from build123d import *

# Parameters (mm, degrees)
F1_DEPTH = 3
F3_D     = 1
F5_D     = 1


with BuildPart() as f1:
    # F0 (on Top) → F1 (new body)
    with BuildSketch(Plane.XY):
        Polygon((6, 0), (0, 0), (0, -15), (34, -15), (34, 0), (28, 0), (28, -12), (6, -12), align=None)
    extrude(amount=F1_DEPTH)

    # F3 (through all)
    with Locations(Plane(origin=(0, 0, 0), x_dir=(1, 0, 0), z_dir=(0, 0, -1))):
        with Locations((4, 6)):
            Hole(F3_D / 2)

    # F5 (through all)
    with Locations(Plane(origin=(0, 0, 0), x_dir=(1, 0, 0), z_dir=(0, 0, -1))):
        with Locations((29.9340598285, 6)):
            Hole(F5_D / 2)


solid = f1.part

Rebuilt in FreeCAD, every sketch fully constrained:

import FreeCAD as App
import Part
import Sketcher
from FreeCAD import Vector


def add_polygon(sketch, points):
    """Adds a closed chain of lines whose ends are joined by coincident constraints."""
    first, n = sketch.GeometryCount, len(points)
    for a, b in zip(points, points[1:] + points[:1]):
        sketch.addGeometry(Part.LineSegment(App.Vector(*a, 0), App.Vector(*b, 0)), False)
    for i in range(n):
        sketch.addConstraint(Sketcher.Constraint("Coincident", first + i, 2, first + (i + 1) % n, 1))

doc = App.newDocument("Part")
body = doc.addObject("PartDesign::Body", "Body")

# Sketch on XY plane
sketch1 = body.newObject("Sketcher::SketchObject", "Sketch")
sketch1.AttachmentSupport = (doc.getObject("XY_Plane"), [""])
sketch1.MapMode = "FlatFace"
add_polygon(sketch1, [(6, 0), (0, 0), (0, -15), (34, -15), (34, 0), (28, 0), (28, -12), (6, -12)])  # lines 0-7
sketch1.addConstraint([
    Sketcher.Constraint("Horizontal", 0),
    Sketcher.Constraint("Vertical", 1),
    Sketcher.Constraint("Horizontal", 2),
    Sketcher.Constraint("Vertical", 3),
    Sketcher.Constraint("Horizontal", 4),
    Sketcher.Constraint("Vertical", 5),
    Sketcher.Constraint("Horizontal", 6),
    Sketcher.Constraint("Vertical", 7),
    Sketcher.Constraint("Coincident", 0, 2, -1, 1),
    Sketcher.Constraint("PointOnObject", 3, 2, -1),
    Sketcher.Constraint("Equal", 0, 4),
    Sketcher.Constraint("DistanceX", 0, 2, 0, 1, 6.0),
    Sketcher.Constraint("DistanceX", 2, 1, 2, 2, 34.0),
    Sketcher.Constraint("DistanceY", 1, 2, 1, 1, 15.0),
    Sketcher.Constraint("DistanceY", 5, 2, 5, 1, 12.0),
])
pad1 = body.newObject("PartDesign::Pad", "Pad")
pad1.Profile = sketch1
pad1.Length = 3

# Sketch on XY plane
sketch2 = body.newObject("Sketcher::SketchObject", "Sketch001")
sketch2.AttachmentSupport = (doc.getObject("XY_Plane"), [""])
sketch2.MapMode = "FlatFace"
sketch2.addGeometry(Part.Circle(Vector(4, -6, 0), Vector(0, 0, 1), 0.5), False)
sketch2.addConstraint([
    Sketcher.Constraint("Diameter", 0, 1.0),
    Sketcher.Constraint("DistanceX", -1, 1, 0, 3, 4.0),
    Sketcher.Constraint("DistanceY", 0, 3, -1, 1, 6.0),
])
doc.recompute()
hole = body.newObject("PartDesign::Hole", "Hole")
hole.Profile = sketch2
hole.ThreadType = "None"
hole.Diameter = 1
hole.DepthType = "ThroughAll"
hole.Reversed = True

# Sketch on XY plane
sketch3 = body.newObject("Sketcher::SketchObject", "Sketch002")
sketch3.AttachmentSupport = (doc.getObject("XY_Plane"), [""])
sketch3.MapMode = "FlatFace"
sketch3.addGeometry(Part.Circle(Vector(29.93406, -6, 0), Vector(0, 0, 1), 0.5), False)
sketch3.addConstraint([
    Sketcher.Constraint("Diameter", 0, 1.0),
    Sketcher.Constraint("DistanceY", 0, 3, -1, 1, 6.0),
    Sketcher.Constraint("DistanceX", -1, 1, 0, 3, 29.93406),
])
doc.recompute()
hole2 = body.newObject("PartDesign::Hole", "Hole001")
hole2.Profile = sketch3
hole2.ThreadType = "None"
hole2.Diameter = 1
hole2.DepthType = "ThroughAll"
hole2.Reversed = True

doc.recompute()
